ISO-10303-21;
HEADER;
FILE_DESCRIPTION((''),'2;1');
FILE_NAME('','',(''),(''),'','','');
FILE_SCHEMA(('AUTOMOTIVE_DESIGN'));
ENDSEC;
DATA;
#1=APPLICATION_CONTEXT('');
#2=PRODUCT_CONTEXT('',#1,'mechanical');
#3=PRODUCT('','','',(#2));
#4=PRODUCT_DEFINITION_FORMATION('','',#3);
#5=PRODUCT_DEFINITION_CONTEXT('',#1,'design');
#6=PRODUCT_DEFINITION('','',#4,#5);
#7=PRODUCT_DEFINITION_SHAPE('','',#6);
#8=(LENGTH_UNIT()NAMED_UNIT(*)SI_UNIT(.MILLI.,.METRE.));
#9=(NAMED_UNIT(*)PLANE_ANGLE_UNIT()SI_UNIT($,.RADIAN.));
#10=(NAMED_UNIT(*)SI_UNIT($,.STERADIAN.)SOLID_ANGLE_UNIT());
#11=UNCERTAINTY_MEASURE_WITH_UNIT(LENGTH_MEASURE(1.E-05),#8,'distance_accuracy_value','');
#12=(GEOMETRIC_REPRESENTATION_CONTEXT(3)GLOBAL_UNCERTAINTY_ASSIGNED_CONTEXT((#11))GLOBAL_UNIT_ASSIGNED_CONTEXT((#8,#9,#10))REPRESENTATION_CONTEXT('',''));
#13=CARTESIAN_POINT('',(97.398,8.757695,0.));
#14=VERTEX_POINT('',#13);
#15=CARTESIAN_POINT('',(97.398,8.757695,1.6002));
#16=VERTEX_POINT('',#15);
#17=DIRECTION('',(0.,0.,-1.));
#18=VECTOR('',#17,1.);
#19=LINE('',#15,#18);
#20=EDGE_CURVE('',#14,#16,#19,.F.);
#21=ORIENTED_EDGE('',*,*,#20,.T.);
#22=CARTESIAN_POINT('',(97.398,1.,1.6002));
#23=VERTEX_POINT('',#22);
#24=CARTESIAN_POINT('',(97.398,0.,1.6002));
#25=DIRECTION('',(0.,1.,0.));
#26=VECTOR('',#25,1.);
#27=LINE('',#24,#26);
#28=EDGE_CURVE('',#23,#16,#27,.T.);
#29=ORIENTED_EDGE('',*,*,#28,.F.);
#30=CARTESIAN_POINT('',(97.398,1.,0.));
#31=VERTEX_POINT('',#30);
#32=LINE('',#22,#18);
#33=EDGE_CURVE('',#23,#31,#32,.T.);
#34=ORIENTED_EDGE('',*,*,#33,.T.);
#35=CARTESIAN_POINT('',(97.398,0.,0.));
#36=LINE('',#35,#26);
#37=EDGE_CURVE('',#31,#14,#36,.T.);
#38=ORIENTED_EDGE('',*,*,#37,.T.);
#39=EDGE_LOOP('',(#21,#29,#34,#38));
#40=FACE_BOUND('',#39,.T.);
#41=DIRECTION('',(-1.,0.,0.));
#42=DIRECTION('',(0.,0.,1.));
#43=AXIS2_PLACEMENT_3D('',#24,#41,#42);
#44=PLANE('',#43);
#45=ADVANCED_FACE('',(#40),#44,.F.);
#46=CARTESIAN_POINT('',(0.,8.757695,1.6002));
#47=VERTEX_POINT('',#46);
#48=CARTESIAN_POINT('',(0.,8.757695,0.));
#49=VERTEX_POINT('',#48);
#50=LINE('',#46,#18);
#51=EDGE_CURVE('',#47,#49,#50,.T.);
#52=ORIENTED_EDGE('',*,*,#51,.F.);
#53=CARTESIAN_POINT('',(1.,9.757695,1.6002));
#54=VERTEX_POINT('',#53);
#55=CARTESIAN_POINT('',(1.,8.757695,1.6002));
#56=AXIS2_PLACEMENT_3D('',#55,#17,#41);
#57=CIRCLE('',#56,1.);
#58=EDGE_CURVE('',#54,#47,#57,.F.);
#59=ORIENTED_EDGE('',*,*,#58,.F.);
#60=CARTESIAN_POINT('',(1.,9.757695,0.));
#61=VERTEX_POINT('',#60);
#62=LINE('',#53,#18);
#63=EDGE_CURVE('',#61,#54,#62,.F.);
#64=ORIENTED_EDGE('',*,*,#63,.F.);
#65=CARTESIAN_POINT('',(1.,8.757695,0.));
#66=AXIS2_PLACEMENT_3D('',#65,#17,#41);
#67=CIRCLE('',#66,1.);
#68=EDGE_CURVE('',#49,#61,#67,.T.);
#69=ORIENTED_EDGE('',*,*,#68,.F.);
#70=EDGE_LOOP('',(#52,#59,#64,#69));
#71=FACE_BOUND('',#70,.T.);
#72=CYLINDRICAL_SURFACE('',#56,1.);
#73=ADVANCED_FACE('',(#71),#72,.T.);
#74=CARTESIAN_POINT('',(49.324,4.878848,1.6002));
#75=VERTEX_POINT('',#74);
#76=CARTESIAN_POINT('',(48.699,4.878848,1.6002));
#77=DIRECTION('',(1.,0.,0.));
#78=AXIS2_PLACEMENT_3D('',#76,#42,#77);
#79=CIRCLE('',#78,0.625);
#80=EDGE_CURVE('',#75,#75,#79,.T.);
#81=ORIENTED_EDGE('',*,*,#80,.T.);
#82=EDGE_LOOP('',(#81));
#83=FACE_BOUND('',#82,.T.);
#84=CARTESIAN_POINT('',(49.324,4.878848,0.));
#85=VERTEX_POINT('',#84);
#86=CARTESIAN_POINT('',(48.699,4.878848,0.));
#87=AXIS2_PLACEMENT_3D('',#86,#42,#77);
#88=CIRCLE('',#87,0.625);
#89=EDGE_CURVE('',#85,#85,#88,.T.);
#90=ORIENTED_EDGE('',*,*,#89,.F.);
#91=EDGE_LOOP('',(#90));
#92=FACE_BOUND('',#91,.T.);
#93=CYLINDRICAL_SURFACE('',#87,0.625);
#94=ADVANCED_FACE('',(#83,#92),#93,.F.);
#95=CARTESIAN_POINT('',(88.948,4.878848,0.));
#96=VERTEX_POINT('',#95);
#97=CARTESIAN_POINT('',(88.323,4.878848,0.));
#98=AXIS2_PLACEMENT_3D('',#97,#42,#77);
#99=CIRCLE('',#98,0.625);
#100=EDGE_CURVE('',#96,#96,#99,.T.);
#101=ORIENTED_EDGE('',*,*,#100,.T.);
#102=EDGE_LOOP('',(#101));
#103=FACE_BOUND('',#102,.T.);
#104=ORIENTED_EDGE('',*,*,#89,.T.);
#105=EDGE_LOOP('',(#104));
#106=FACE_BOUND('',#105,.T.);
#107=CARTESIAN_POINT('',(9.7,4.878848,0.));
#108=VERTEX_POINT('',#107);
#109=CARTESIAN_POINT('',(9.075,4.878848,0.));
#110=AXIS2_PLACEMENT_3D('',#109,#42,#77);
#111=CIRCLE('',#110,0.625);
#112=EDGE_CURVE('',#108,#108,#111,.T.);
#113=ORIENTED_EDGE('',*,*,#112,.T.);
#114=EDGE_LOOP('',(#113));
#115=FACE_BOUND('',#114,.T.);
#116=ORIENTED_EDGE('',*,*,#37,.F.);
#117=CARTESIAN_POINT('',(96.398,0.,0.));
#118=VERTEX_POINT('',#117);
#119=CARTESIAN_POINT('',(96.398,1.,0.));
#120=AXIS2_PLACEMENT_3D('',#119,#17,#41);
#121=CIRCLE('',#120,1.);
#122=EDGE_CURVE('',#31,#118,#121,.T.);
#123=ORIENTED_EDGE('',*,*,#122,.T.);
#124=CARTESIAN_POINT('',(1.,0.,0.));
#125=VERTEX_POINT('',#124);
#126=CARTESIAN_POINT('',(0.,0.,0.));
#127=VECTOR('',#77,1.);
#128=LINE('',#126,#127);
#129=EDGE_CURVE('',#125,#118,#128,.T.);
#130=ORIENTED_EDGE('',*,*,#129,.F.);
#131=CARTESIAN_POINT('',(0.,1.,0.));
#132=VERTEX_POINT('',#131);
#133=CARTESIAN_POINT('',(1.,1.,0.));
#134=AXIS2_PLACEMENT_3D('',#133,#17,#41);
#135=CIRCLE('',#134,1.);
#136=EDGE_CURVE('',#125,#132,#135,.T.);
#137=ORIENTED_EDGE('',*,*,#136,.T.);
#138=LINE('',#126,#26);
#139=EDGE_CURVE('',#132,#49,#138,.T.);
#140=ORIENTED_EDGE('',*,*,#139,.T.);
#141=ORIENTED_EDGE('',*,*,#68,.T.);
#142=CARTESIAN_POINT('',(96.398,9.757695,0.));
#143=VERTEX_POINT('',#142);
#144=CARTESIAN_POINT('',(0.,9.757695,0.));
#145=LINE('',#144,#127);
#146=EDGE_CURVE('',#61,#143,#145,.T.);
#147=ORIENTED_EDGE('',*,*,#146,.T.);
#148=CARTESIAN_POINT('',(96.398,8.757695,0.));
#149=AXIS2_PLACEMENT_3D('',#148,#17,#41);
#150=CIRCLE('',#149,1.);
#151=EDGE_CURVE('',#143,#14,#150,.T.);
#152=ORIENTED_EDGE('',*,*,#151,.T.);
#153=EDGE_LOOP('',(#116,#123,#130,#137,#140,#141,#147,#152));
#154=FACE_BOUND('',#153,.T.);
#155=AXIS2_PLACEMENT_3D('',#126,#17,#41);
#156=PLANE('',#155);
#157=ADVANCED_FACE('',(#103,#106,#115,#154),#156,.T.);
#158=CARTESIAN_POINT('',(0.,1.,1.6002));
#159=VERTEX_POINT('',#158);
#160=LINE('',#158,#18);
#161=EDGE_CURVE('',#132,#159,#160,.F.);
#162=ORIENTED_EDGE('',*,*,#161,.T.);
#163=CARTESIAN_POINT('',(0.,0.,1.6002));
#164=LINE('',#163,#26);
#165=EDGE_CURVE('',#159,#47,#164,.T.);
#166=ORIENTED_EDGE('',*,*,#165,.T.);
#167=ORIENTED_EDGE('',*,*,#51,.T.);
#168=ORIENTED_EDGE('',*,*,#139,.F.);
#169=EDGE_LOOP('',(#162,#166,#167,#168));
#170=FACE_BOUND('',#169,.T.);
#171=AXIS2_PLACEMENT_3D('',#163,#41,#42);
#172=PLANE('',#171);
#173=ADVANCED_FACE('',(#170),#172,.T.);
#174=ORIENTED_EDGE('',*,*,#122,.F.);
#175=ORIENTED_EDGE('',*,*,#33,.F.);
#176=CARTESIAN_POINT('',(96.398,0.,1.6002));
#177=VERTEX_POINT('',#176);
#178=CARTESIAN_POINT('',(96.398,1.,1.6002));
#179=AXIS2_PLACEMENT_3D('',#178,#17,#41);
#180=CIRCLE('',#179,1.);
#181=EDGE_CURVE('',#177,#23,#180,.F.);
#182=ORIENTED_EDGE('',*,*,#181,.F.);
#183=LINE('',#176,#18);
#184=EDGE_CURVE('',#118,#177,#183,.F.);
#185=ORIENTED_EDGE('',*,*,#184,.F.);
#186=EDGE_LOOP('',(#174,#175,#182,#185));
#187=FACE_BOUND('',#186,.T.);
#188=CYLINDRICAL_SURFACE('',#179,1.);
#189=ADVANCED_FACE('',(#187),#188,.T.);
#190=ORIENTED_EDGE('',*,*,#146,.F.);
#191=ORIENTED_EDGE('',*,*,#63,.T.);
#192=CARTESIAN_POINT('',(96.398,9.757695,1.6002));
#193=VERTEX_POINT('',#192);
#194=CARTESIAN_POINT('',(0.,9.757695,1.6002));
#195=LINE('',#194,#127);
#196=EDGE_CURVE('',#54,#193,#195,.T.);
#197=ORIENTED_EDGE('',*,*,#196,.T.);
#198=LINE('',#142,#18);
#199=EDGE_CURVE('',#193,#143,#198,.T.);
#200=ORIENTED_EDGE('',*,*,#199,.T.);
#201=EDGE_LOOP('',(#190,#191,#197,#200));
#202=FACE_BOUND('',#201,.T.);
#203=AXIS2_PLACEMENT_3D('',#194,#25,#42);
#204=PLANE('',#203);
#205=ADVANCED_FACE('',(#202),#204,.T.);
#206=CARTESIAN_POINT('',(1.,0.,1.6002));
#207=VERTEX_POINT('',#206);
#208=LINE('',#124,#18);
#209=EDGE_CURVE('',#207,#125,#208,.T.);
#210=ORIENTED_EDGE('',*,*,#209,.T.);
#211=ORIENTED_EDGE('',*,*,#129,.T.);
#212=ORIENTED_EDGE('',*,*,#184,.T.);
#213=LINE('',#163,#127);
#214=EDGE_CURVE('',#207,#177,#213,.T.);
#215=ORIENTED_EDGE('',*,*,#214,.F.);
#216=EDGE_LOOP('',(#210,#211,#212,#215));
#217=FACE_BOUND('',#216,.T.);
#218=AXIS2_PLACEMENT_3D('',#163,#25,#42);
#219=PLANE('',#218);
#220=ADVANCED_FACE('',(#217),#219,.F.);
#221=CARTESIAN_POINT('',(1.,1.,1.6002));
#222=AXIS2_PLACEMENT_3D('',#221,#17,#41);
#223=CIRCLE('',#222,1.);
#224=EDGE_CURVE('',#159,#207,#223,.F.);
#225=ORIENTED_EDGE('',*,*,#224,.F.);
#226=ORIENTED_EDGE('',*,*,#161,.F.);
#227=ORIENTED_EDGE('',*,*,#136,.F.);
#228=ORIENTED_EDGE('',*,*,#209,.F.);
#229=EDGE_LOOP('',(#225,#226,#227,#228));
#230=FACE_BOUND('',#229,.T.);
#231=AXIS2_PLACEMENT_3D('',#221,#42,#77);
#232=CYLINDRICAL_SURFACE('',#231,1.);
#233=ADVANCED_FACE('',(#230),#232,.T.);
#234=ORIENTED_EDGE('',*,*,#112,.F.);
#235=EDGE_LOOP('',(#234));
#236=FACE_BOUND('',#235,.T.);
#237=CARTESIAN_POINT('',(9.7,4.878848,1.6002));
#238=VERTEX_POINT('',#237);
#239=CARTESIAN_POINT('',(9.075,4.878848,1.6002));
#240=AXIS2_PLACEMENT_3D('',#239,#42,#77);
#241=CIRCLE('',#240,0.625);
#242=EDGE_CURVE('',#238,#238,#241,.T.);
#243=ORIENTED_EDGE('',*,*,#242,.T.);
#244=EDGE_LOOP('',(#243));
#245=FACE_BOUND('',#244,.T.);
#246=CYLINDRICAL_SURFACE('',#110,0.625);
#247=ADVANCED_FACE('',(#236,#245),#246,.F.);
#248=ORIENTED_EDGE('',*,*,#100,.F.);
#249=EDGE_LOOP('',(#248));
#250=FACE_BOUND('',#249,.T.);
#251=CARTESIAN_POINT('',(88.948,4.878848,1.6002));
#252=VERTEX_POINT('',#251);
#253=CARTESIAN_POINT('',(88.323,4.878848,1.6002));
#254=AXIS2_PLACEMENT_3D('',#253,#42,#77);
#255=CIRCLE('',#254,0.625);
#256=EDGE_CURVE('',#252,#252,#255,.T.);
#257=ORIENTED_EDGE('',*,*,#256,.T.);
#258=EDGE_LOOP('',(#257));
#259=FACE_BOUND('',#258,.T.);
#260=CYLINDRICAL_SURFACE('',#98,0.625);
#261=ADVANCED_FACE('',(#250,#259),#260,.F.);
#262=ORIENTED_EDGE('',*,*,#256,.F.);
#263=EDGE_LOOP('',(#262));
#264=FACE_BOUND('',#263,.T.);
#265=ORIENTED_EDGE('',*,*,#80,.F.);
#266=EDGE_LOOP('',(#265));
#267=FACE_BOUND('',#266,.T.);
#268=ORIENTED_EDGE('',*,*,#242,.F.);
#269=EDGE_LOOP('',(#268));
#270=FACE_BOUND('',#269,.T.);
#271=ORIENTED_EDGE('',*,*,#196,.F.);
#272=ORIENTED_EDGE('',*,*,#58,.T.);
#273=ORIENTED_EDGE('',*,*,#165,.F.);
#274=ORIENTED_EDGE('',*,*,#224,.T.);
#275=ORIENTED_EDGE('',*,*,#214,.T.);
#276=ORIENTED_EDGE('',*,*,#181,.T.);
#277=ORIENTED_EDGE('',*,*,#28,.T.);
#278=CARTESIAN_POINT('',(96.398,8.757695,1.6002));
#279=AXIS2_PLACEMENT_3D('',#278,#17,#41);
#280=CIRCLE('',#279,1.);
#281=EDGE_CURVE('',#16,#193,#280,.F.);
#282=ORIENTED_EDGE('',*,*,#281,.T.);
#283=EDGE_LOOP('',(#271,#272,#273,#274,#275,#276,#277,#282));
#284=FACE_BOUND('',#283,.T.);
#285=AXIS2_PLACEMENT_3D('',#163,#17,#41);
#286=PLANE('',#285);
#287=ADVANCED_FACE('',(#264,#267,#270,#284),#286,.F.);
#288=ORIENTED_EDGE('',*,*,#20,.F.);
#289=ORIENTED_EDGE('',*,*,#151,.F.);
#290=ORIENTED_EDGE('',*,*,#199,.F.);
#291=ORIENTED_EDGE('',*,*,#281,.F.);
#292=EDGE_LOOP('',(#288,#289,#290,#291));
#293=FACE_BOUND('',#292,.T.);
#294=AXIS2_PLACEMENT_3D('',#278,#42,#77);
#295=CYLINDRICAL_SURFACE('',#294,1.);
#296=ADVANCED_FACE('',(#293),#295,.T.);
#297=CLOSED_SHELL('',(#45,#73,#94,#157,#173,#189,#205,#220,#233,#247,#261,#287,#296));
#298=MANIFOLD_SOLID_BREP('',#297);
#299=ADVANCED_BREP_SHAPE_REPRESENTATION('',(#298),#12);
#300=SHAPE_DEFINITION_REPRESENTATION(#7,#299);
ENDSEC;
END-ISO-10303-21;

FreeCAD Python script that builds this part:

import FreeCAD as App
import Part
import Sketcher

V = App.Vector


def edges_at(feature, points):
    """Names of the edges that pass closest to the given points."""
    edges = feature.Shape.Edges
    near = lambda p: min(range(len(edges)), key=lambda i: edges[i].distToShape(Part.Vertex(*p))[0])
    return sorted({f"Edge{near(p) + 1}" for p in points})

doc = App.newDocument("Part")
body = doc.addObject("PartDesign::Body", "Body")

sketch1 = body.newObject("Sketcher::SketchObject", "Sketch")
sketch1.AttachmentSupport = (doc.getObject("XY_Plane"), [""])
sketch1.MapMode = "FlatFace"
sketch1.addGeometry([
    Part.LineSegment(V(0, 9.757695, 0), V(0, 0, 0)),
    Part.LineSegment(V(0, 0, 0), V(97.398, 0, 0)),
    Part.LineSegment(V(97.398, 0, 0), V(97.398, 9.757695, 0)),
    Part.LineSegment(V(97.398, 9.757695, 0), V(0, 9.757695, 0)),
], False)
sketch1.addConstraint([
    Sketcher.Constraint("Coincident", 0, 2, 1, 1),
    Sketcher.Constraint("Coincident", 1, 2, 2, 1),
    Sketcher.Constraint("Coincident", 2, 2, 3, 1),
    Sketcher.Constraint("Coincident", 3, 2, 0, 1),
    Sketcher.Constraint("Vertical", 0),
    Sketcher.Constraint("Horizontal", 1),
    Sketcher.Constraint("Vertical", 2),
    Sketcher.Constraint("Horizontal", 3),
    Sketcher.Constraint("Coincident", 0, 2, -1, 1),
    Sketcher.Constraint("DistanceX", 1, 1, 1, 2, 97.398),
    Sketcher.Constraint("DistanceY", 0, 2, 0, 1, 9.757695),
])
pad1 = body.newObject("PartDesign::Pad", "Pad")
pad1.Profile = sketch1
pad1.Length = 1.6002

sketch2 = body.newObject("Sketcher::SketchObject", "Sketch001")
sketch2.AttachmentSupport = (doc.getObject("XY_Plane"), [""])
sketch2.MapMode = "FlatFace"
sketch2.AttachmentOffset = App.Placement(V(0, 0, 1.6002), App.Rotation())
sketch2.addGeometry([
    Part.Circle(V(9.075, 4.878848, 0), V(0, 0, 1), 0.625),
    Part.Circle(V(48.699, 4.878848, 0), V(0, 0, 1), 0.625),
    Part.Circle(V(88.323, 4.878848, 0), V(0, 0, 1), 0.625),
], False)
sketch2.addConstraint([
    Sketcher.Constraint("Equal", 0, 1),
    Sketcher.Constraint("Equal", 1, 2),
    Sketcher.Constraint("Horizontal", 0, 3, 1, 3),
    Sketcher.Constraint("Horizontal", 1, 3, 2, 3),
    Sketcher.Constraint("Diameter", 0, 1.25),
    Sketcher.Constraint("DistanceX", -1, 1, 0, 3, 9.075),
    Sketcher.Constraint("DistanceX", -1, 1, 1, 3, 48.699),
    Sketcher.Constraint("DistanceX", -1, 1, 2, 3, 88.323),
    Sketcher.Constraint("DistanceY", -1, 1, 0, 3, 4.878848),
])
pocket1 = body.newObject("PartDesign::Pocket", "Pocket")
pocket1.Profile = sketch2
pocket1.Type = "ThroughAll"
doc.recompute()

fillet = body.newObject("PartDesign::Fillet", "Fillet")
fillet.Base = (pocket1, edges_at(pocket1, [
    (0, 0, 0.8),
    (97.398, 0, 0.8),
    (97.398, 9.758, 0.8),
    (0, 9.758, 0.8),
]))
fillet.Radius = 1

doc.recompute()
